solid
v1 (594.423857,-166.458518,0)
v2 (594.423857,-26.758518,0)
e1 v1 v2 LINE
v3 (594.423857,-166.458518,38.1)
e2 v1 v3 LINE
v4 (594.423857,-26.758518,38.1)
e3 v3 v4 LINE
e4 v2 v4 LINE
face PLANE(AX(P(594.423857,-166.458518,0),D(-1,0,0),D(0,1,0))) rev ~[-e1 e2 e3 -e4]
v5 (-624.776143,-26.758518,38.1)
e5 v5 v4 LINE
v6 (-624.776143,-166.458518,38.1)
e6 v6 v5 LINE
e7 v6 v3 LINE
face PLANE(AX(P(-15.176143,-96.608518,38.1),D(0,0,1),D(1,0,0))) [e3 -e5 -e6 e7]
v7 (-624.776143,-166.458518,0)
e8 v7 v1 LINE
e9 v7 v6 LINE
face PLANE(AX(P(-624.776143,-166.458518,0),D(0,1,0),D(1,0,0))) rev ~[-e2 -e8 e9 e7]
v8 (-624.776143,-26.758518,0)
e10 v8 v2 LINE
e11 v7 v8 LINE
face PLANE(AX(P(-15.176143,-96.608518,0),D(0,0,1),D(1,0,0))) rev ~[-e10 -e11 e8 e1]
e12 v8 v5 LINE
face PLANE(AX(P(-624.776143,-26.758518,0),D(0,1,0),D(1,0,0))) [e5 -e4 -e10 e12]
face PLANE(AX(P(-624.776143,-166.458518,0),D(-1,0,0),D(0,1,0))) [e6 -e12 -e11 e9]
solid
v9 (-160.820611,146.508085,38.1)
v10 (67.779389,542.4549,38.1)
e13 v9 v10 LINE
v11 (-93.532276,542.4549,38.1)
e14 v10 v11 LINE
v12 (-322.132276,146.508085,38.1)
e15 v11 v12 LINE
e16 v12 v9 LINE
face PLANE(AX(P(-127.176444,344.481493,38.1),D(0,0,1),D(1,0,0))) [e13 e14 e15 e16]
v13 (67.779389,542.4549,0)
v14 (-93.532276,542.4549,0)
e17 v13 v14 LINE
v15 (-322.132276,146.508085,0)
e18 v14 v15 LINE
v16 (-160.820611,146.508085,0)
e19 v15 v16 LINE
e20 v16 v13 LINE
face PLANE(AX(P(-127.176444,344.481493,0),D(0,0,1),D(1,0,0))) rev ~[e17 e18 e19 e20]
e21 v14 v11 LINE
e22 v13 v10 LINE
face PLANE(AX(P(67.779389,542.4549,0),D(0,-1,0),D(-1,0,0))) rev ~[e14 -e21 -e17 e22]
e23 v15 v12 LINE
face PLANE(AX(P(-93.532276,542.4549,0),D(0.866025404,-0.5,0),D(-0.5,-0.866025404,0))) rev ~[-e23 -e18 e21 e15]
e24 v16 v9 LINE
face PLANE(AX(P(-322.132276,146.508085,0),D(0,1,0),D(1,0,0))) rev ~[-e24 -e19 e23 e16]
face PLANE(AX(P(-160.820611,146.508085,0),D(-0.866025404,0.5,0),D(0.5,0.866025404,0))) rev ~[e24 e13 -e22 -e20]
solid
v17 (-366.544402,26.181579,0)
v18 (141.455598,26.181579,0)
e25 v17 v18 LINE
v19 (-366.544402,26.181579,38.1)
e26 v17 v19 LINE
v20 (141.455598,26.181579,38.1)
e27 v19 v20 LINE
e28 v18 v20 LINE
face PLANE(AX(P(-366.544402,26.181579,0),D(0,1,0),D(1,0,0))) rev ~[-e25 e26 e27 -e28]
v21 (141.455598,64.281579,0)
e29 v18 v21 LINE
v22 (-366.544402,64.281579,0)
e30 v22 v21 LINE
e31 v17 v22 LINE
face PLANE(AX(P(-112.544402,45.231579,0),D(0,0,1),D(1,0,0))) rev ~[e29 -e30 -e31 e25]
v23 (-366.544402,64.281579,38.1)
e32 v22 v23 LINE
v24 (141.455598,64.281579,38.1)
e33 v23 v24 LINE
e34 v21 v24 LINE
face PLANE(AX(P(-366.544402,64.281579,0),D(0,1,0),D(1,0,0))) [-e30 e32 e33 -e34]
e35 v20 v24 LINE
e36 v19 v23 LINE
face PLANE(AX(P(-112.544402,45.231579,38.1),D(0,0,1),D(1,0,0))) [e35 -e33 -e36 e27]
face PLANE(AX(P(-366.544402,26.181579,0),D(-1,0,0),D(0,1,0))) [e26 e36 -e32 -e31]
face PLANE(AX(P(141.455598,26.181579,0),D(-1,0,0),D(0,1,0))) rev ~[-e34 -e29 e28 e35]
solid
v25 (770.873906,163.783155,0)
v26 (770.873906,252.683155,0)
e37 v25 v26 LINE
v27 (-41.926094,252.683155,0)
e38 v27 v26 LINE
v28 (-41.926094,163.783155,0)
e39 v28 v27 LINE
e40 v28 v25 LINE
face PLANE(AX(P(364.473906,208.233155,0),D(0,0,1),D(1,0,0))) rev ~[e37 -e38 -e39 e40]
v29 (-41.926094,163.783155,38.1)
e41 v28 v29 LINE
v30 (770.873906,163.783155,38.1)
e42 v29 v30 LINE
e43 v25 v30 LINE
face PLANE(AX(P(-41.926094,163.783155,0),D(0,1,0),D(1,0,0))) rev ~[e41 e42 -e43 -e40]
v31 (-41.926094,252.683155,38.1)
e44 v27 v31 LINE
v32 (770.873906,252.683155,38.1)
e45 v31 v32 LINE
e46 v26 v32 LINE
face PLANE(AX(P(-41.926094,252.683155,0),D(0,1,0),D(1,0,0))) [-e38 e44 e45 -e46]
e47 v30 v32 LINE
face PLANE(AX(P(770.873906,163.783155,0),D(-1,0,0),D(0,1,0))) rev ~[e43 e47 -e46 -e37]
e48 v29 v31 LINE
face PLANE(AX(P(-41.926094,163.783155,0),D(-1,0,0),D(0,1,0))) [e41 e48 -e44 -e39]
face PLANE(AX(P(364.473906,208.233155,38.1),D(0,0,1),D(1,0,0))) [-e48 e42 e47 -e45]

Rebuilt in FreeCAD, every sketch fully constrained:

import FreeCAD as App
import Part
import Sketcher

V = App.Vector
Q = App.Units.Quantity


def add_polygon(sketch, points):
    """Adds a closed chain of lines whose ends are joined by coincident constraints."""
    first, n = sketch.GeometryCount, len(points)
    for a, b in zip(points, points[1:] + points[:1]):
        sketch.addGeometry(Part.LineSegment(App.Vector(*a, 0), App.Vector(*b, 0)), False)
    for i in range(n):
        sketch.addConstraint(Sketcher.Constraint("Coincident", first + i, 2, first + (i + 1) % n, 1))

doc = App.newDocument("Part")
body = doc.addObject("PartDesign::Body", "Body")

# Sketch on XY plane
sketch1 = body.newObject("Sketcher::SketchObject", "Sketch")
sketch1.AttachmentSupport = (doc.getObject("XY_Plane"), [""])
sketch1.MapMode = "FlatFace"
add_polygon(sketch1, [(-625, -27), (-625, -166), (594, -166), (594, -27)])  # lines 0-3
sketch1.addConstraint([
    Sketcher.Constraint("Vertical", 0),
    Sketcher.Constraint("Horizontal", 1),
    Sketcher.Constraint("Vertical", 2),
    Sketcher.Constraint("Horizontal", 3),
    Sketcher.Constraint("DistanceX", 1, 1, 1, 2, Q("48 in")),
    Sketcher.Constraint("DistanceY", 0, 2, 0, 1, Q("5.5 in")),
    Sketcher.Constraint("DistanceY", 0, 2, -1, 1, Q("166.458518 mm")),
    Sketcher.Constraint("DistanceX", 0, 2, -1, 1, Q("624.776143 mm")),
])
pad1 = body.newObject("PartDesign::Pad", "Pad")
pad1.Profile = sketch1
pad1.Length = Q("1.5 in")
body2 = doc.addObject("PartDesign::Body", "Body001")

# Sketch on XY plane
sketch2 = body2.newObject("Sketcher::SketchObject", "Sketch001")
sketch2.AttachmentSupport = (doc.getObject("XY_Plane001"), [""])
sketch2.MapMode = "FlatFace"
add_polygon(sketch2, [(-367, 64), (-367, 26), (141, 26), (141, 64)])  # lines 0-3
sketch2.addConstraint([
    Sketcher.Constraint("Vertical", 0),
    Sketcher.Constraint("Horizontal", 1),
    Sketcher.Constraint("Vertical", 2),
    Sketcher.Constraint("Horizontal", 3),
    Sketcher.Constraint("DistanceX", 1, 1, 1, 2, Q("20 in")),
    Sketcher.Constraint("DistanceY", 0, 2, 0, 1, Q("1.5 in")),
    Sketcher.Constraint("DistanceX", 0, 2, -1, 1, Q("366.544402 mm")),
    Sketcher.Constraint("DistanceY", -1, 1, 0, 2, Q("26.181579 mm")),
])
pad2 = body2.newObject("PartDesign::Pad", "Pad001")
pad2.Profile = sketch2
pad2.Length = Q("1.5 in")
body3 = doc.addObject("PartDesign::Body", "Body002")

# Sketch on XY plane
sketch3 = body3.newObject("Sketcher::SketchObject", "Sketch002")
sketch3.AttachmentSupport = (doc.getObject("XY_Plane002"), [""])
sketch3.MapMode = "FlatFace"
add_polygon(sketch3, [(-94, 542), (-322, 147), (-161, 147), (68, 542)])  # lines 0-3
sketch3.addConstraint([
    Sketcher.Constraint("Horizontal", 1),
    Sketcher.Constraint("Horizontal", 3),
    Sketcher.Constraint("Parallel", 0, 2),
    Sketcher.Constraint("Distance", 0, Q("18 in")),
    Sketcher.Constraint("Angle", 0, Q("-120 deg")),
    Sketcher.Constraint("DistanceY", -1, 1, 2, 2, Q("542.4549 mm")),
    Sketcher.Constraint("DistanceX", 1, 1, 1, 2, Q("161.311665 mm")),
    Sketcher.Constraint("DistanceX", 1, 2, -1, 1, Q("160.820611 mm")),
])
pad3 = body3.newObject("PartDesign::Pad", "Pad002")
pad3.Profile = sketch3
pad3.Length = Q("1.5 in")
body4 = doc.addObject("PartDesign::Body", "Body003")

# Sketch on XY plane
sketch4 = body4.newObject("Sketcher::SketchObject", "Sketch003")
sketch4.AttachmentSupport = (doc.getObject("XY_Plane003"), [""])
sketch4.MapMode = "FlatFace"
add_polygon(sketch4, [(-42, 253), (-42, 164), (771, 164), (771, 253)])  # lines 0-3
sketch4.addConstraint([
    Sketcher.Constraint("Vertical", 0),
    Sketcher.Constraint("Horizontal", 1),
    Sketcher.Constraint("Vertical", 2),
    Sketcher.Constraint("Horizontal", 3),
    Sketcher.Constraint("DistanceX", 1, 1, 1, 2, Q("32 in")),
    Sketcher.Constraint("DistanceY", 0, 2, 0, 1, Q("3.5 in")),
    Sketcher.Constraint("DistanceX", 0, 2, -1, 1, Q("41.926094 mm")),
    Sketcher.Constraint("DistanceY", -1, 1, 0, 2, Q("163.783155 mm")),
])
pad4 = body4.newObject("PartDesign::Pad", "Pad003")
pad4.Profile = sketch4
pad4.Length = Q("1.5 in")

doc.recompute()
